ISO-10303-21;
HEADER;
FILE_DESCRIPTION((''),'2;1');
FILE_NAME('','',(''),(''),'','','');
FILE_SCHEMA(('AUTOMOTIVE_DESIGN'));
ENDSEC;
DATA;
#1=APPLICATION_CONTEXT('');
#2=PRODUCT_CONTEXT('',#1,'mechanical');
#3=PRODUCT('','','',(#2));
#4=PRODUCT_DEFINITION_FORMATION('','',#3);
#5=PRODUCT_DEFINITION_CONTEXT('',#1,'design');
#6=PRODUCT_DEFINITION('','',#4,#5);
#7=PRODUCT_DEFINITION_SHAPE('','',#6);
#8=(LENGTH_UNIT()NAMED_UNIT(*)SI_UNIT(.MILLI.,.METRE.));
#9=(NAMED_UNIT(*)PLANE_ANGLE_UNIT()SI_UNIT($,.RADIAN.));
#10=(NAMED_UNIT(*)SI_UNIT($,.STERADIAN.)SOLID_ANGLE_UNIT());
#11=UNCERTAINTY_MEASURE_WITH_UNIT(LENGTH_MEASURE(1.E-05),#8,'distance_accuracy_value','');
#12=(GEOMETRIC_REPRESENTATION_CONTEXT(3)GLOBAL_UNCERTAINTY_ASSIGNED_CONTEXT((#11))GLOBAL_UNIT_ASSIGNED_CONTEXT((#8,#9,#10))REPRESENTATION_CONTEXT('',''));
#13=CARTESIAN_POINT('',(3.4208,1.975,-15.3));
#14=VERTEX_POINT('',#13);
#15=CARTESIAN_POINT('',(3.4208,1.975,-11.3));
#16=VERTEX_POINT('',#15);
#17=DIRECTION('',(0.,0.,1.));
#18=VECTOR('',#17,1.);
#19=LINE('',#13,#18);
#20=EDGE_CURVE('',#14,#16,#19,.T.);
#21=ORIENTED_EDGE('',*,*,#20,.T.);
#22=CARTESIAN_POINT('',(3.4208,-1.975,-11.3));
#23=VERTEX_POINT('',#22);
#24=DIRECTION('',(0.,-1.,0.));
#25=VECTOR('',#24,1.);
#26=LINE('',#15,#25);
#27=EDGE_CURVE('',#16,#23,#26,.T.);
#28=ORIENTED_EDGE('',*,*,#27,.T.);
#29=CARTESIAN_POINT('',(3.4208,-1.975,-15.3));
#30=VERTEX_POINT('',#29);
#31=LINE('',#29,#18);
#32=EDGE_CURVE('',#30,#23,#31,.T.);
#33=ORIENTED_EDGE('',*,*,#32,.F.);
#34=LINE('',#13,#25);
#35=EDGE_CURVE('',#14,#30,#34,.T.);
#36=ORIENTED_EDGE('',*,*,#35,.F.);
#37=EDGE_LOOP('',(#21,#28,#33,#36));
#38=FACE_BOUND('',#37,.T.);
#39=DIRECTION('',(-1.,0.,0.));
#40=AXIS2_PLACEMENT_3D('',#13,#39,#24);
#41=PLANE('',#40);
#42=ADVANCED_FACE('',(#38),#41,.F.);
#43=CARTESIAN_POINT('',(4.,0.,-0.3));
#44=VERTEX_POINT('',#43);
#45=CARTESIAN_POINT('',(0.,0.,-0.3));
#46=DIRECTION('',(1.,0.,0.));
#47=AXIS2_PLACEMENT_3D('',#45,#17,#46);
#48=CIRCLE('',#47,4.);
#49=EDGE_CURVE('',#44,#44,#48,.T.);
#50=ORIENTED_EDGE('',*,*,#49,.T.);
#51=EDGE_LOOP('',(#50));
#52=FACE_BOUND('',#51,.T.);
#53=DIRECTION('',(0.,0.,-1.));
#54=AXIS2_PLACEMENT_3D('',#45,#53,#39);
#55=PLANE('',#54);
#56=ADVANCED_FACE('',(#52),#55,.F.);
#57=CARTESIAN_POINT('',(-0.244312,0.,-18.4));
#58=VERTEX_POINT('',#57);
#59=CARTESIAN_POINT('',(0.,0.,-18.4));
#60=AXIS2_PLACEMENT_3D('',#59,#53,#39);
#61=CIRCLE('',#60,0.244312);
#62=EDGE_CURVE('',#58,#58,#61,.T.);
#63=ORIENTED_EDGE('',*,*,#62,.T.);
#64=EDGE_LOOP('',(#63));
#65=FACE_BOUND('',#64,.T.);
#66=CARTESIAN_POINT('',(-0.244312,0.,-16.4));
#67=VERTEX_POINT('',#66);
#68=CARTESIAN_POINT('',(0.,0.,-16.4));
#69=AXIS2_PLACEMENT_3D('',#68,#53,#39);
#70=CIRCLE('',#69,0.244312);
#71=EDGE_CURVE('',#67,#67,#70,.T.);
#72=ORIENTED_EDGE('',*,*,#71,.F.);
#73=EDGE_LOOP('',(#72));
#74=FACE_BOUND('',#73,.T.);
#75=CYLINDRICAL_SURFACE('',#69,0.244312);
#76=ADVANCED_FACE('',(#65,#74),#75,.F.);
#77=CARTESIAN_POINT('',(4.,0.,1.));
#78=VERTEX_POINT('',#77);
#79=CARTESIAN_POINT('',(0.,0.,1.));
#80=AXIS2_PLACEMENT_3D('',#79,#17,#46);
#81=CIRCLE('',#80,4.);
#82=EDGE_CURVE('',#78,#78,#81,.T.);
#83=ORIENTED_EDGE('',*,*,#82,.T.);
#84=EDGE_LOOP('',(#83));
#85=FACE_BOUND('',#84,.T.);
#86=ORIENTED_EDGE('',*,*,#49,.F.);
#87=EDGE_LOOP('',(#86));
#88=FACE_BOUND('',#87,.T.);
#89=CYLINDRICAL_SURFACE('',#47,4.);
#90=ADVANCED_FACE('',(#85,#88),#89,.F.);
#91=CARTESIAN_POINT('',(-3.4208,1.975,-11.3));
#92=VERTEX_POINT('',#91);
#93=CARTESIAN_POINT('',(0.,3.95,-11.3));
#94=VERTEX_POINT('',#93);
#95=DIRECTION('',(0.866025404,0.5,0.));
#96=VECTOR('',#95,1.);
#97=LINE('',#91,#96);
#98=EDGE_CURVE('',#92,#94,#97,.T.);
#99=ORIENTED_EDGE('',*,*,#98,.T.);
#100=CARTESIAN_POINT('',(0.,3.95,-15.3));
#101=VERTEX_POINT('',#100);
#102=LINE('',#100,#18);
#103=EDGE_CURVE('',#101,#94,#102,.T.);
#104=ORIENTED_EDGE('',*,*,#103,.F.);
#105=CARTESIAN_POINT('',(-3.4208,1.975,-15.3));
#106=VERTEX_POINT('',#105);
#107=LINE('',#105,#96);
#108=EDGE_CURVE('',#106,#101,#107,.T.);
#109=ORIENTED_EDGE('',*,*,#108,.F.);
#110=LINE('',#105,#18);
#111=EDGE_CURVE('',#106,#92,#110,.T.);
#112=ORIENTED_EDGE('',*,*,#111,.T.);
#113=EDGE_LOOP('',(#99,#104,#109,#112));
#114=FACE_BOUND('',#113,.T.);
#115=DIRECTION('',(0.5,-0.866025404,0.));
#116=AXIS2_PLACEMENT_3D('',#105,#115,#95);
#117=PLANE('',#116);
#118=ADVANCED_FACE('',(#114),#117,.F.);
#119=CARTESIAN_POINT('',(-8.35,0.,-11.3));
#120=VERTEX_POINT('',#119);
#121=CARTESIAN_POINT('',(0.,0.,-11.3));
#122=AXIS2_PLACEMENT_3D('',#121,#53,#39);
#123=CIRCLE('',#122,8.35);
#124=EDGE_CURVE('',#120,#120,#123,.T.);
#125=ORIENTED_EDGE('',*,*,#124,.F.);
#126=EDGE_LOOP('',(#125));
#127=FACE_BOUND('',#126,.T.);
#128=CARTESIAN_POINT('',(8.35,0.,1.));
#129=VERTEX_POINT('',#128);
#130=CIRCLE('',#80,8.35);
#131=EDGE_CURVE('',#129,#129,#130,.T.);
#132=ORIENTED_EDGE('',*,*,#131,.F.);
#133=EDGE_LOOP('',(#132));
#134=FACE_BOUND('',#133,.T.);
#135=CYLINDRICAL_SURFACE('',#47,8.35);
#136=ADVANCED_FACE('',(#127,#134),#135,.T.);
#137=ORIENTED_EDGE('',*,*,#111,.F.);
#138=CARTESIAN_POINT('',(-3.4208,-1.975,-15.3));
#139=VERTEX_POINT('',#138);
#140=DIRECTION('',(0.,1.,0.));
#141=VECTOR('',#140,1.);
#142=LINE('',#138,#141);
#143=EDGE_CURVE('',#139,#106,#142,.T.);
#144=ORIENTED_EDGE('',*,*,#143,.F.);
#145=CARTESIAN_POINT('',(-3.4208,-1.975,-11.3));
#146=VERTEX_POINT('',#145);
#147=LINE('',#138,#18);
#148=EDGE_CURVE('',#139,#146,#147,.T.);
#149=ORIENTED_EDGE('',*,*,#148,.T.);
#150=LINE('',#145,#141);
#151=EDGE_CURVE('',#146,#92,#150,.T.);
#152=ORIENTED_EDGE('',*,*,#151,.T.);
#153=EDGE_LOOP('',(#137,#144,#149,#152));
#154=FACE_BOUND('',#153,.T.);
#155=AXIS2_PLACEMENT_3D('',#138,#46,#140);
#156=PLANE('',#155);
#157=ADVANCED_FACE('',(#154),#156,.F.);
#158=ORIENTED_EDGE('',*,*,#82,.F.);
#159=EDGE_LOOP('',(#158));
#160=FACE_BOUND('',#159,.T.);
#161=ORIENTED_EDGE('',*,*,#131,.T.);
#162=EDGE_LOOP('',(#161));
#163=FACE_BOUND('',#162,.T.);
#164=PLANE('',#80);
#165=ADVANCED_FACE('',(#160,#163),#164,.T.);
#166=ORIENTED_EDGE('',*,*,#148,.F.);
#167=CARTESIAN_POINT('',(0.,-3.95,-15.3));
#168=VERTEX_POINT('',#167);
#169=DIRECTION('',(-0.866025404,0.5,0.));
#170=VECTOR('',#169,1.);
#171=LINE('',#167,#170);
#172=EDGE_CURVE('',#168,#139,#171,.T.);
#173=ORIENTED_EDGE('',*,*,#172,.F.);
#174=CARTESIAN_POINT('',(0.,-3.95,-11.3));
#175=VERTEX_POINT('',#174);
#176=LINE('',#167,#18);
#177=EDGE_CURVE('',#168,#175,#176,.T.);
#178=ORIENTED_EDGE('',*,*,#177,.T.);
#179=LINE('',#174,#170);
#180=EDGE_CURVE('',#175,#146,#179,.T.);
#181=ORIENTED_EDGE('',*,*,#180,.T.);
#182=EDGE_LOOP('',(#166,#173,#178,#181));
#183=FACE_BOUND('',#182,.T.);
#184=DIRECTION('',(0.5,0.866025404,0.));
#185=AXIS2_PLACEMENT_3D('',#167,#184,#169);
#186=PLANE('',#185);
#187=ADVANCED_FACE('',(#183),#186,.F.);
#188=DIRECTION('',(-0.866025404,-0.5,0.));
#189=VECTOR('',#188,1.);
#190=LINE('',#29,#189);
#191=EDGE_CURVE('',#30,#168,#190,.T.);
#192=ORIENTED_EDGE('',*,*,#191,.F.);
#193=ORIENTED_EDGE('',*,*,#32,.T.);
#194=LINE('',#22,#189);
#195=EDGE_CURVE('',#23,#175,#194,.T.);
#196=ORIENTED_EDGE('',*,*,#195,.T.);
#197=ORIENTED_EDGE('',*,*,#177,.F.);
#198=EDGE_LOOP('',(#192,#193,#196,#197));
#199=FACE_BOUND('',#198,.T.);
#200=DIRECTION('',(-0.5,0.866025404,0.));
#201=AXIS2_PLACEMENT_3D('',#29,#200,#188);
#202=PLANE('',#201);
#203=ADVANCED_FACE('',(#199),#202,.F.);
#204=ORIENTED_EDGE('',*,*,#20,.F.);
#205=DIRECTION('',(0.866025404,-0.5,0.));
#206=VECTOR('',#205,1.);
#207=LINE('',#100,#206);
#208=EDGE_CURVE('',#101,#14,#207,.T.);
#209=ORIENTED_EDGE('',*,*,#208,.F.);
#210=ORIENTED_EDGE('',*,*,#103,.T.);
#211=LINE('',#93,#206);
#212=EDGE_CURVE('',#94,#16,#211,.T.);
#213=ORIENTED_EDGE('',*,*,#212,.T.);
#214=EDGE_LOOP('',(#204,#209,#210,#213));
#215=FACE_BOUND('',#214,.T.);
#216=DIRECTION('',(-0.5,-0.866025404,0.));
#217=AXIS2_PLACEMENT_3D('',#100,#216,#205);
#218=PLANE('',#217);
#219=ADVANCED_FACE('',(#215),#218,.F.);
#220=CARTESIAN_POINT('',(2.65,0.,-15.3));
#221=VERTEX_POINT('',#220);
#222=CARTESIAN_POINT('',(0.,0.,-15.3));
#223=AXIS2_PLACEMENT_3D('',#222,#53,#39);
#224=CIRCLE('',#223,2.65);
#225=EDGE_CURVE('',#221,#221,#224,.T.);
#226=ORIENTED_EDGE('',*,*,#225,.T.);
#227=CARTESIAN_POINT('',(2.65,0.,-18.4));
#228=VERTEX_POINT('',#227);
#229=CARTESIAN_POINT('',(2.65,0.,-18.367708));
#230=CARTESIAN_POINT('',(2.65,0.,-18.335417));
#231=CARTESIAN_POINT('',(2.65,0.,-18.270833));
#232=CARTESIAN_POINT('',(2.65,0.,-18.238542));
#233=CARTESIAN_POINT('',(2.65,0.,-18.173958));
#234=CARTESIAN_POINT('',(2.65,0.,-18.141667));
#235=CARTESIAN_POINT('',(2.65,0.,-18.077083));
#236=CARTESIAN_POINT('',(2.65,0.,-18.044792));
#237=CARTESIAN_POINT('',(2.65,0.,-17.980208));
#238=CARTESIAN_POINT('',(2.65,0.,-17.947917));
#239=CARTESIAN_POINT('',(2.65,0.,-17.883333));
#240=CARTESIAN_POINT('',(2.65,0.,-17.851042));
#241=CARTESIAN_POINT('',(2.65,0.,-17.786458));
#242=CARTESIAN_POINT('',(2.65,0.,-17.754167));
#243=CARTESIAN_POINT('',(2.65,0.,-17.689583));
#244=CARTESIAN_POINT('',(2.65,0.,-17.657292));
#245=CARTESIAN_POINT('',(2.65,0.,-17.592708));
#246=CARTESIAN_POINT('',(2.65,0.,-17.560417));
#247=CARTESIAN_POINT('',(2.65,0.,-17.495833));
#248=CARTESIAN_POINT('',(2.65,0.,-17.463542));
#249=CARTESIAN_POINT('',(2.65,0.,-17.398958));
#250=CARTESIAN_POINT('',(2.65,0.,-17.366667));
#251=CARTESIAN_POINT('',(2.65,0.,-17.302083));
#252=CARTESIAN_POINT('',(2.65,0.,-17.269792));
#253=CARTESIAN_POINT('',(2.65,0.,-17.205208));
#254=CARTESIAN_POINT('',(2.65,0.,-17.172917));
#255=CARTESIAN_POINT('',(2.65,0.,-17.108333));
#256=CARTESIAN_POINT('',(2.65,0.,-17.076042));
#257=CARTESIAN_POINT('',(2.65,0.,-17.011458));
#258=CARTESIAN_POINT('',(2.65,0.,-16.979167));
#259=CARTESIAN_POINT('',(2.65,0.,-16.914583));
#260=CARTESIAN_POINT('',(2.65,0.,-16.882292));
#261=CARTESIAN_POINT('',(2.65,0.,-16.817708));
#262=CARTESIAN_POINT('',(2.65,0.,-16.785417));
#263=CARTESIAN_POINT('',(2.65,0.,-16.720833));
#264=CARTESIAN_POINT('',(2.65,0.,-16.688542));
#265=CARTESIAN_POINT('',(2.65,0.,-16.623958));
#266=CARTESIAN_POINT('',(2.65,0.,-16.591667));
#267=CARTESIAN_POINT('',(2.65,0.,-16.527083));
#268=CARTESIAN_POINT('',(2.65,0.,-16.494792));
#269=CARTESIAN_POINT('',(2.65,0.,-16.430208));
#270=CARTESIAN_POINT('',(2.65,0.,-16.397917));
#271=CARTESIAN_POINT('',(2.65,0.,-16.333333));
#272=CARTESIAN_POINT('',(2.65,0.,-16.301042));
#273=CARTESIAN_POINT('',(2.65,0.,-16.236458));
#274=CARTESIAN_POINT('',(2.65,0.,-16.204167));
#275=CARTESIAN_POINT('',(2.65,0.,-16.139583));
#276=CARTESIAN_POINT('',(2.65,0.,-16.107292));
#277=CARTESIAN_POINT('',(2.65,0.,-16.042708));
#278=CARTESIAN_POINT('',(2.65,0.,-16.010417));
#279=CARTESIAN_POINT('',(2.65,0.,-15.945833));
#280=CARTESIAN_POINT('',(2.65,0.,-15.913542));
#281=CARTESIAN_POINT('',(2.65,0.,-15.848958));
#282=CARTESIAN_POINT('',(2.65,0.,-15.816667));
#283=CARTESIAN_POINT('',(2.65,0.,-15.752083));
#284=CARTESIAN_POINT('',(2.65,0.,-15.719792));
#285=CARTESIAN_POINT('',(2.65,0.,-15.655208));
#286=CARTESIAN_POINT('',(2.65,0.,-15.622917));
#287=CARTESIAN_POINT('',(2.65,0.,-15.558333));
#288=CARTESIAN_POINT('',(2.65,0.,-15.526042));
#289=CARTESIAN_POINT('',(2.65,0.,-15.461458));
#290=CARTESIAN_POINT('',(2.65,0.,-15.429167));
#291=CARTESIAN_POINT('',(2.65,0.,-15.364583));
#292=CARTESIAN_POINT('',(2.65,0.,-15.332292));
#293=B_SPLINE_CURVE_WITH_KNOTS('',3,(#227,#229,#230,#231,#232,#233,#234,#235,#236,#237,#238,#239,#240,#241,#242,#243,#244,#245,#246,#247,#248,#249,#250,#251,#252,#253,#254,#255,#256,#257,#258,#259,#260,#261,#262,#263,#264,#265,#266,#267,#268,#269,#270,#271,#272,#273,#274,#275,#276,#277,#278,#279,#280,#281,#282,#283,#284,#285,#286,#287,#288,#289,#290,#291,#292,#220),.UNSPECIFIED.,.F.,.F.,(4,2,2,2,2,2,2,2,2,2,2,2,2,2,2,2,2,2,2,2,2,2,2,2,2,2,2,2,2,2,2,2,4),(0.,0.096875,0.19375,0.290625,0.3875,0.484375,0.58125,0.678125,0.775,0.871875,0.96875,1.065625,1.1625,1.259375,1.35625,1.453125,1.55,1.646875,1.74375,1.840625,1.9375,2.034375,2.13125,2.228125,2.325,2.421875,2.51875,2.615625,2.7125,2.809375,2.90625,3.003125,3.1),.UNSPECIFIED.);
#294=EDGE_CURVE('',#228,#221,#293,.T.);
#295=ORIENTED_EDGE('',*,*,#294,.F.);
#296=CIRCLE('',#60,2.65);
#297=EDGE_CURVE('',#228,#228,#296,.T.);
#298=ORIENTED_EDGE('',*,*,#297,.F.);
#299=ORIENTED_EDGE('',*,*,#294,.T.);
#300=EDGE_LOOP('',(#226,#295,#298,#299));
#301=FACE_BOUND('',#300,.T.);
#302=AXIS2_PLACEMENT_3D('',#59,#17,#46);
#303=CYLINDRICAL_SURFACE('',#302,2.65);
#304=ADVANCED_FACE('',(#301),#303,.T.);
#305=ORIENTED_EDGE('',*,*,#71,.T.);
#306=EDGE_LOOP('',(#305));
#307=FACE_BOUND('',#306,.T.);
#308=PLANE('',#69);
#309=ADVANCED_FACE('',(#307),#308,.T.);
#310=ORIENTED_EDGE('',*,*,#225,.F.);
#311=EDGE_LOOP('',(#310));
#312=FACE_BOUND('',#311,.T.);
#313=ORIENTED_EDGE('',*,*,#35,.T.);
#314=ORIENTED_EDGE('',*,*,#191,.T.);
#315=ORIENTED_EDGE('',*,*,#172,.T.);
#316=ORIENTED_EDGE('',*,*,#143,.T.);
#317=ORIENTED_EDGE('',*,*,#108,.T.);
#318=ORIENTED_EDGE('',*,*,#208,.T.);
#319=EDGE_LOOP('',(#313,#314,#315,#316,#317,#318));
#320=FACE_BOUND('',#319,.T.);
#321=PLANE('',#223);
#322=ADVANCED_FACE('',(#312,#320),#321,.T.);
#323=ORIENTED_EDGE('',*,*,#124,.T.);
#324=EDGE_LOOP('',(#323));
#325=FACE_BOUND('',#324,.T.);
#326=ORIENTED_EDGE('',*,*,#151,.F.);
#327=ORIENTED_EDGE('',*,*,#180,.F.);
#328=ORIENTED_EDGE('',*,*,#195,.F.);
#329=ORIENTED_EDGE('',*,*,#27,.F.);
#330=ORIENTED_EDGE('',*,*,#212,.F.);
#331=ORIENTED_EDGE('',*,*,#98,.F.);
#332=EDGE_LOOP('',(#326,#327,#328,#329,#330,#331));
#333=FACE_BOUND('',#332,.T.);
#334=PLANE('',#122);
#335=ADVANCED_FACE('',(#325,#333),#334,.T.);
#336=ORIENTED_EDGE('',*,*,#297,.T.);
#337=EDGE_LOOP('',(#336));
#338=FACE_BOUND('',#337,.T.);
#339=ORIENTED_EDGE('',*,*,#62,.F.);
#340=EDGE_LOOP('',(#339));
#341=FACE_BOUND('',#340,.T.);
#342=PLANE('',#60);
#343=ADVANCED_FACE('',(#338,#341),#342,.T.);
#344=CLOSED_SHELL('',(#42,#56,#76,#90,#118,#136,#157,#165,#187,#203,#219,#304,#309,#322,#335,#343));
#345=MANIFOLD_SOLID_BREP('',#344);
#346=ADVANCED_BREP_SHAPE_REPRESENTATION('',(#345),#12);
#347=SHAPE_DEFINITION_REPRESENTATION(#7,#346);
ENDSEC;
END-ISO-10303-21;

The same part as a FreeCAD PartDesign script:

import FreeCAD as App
import Part
import Sketcher

V = App.Vector
Q = App.Units.Quantity

doc = App.newDocument("Part")
body = doc.addObject("PartDesign::Body", "Body")

# Sketch on XY plane
sketch1 = doc.addObject("Sketcher::SketchObject", "Sketch")
body.addObject(sketch1)
sketch1.AttachmentSupport = (doc.XY_Plane, [""])
sketch1.MapMode = "FlatFace"
sketch1.addGeometry([
    Part.Circle(V(0, 0, 0), V(0, 0, 1), 8.3),
    Part.Circle(V(0, 0, 0), V(0, 0, 1), 4),
], False)
sketch1.addConstraint([
    Sketcher.Constraint("Coincident", 0, 3, -1, 1),
    Sketcher.Constraint("Coincident", 1, 3, -1, 1),
    Sketcher.Constraint("Diameter", 1, Q("8 mm")),
    Sketcher.Constraint("Diameter", 0, Q("16.7 mm")),
])
pad1 = doc.addObject("PartDesign::Pad", "Pad")
body.addObject(pad1)
pad1.Profile = sketch1
pad1.Type = "TwoLengths"
pad1.Length = 1
pad1.Length2 = 0.3

# Sketch on XY plane
sketch2 = doc.addObject("Sketcher::SketchObject", "Sketch001")
body.addObject(sketch2)
sketch2.AttachmentSupport = (doc.XY_Plane, [""])
sketch2.MapMode = "FlatFace"
sketch2.AttachmentOffset = App.Placement(V(0, 0, -0.3), App.Rotation())
sketch2.addGeometry(Part.Circle(V(0, 0, 0), V(0, 0, 1), 8), False)
sketch2.addConstraint([
    Sketcher.Constraint("Coincident", 0, 3, -1, 1),
    Sketcher.Constraint("Diameter", 0, Q("16.7 mm")),
])
pad2 = doc.addObject("PartDesign::Pad", "Pad001")
body.addObject(pad2)
pad2.Profile = sketch2
pad2.Length = 11
pad2.Reversed = True

# Sketch on XY plane
sketch3 = doc.addObject("Sketcher::SketchObject", "Sketch002")
body.addObject(sketch3)
sketch3.AttachmentSupport = (doc.XY_Plane, [""])
sketch3.MapMode = "FlatFace"
sketch3.AttachmentOffset = App.Placement(V(0, 0, -11.3), App.Rotation())
sketch3.addGeometry([
    Part.LineSegment(V(0, 4, 0), V(3.4, 2, 0)),  # 0
    Part.LineSegment(V(3.4, 2, 0), V(3.4, -2, 0)),  # 1
    Part.LineSegment(V(3.4, -2, 0), V(0, -4, 0)),  # 2
    Part.LineSegment(V(0, -4, 0), V(-3.4, -2, 0)),  # 3
    Part.LineSegment(V(-3.4, -2, 0), V(-3.4, 2, 0)),  # 4
    Part.LineSegment(V(-3.4, 2, 0), V(0, 4, 0)),  # 5
], False)
sketch3.addConstraint([
    Sketcher.Constraint("Coincident", 0, 2, 1, 1),
    Sketcher.Constraint("Coincident", 1, 2, 2, 1),
    Sketcher.Constraint("Coincident", 2, 2, 3, 1),
    Sketcher.Constraint("Coincident", 3, 2, 4, 1),
    Sketcher.Constraint("Coincident", 4, 2, 5, 1),
    Sketcher.Constraint("Coincident", 5, 2, 0, 1),
    Sketcher.Constraint("Vertical", 1),
    Sketcher.Constraint("Vertical", 4),
    Sketcher.Constraint("Symmetric", 0, 2, 3, 2, -1, 1),
    Sketcher.Constraint("Symmetric", 2, 2, 5, 2, -1, 1),
    Sketcher.Constraint("PointOnObject", 2, 2, -2),
    Sketcher.Constraint("Parallel", 2, 5),
    Sketcher.Constraint("Horizontal", 1, 2, 3, 2),
    Sketcher.Constraint("Angle", 0, Q("-30 deg")),
    Sketcher.Constraint("DistanceY", 1, 2, 1, 1, Q("3.95 mm")),
    Sketcher.Constraint("DistanceY", 2, 2, 5, 2, Q("7.9 mm")),
])
pad3 = doc.addObject("PartDesign::Pad", "Pad002")
body.addObject(pad3)
pad3.Profile = sketch3
pad3.Length = 4
pad3.Reversed = True

# Sketch on XY plane
sketch4 = doc.addObject("Sketcher::SketchObject", "Sketch003")
body.addObject(sketch4)
sketch4.AttachmentSupport = (doc.XY_Plane, [""])
sketch4.MapMode = "FlatFace"
sketch4.AttachmentOffset = App.Placement(V(0, 0, -15.3), App.Rotation())
sketch4.addGeometry(Part.Circle(V(0, 0, 0), V(0, 0, 1), 2.6), False)
sketch4.addConstraint([
    Sketcher.Constraint("Coincident", 0, 3, -1, 1),
    Sketcher.Constraint("Diameter", 0, Q("5.3 mm")),
])
pad4 = doc.addObject("PartDesign::Pad", "Pad003")
body.addObject(pad4)
pad4.Profile = sketch4
pad4.Length = 3.1
pad4.Reversed = True

# Sketch on XY plane
sketch5 = doc.addObject("Sketcher::SketchObject", "Sketch004")
body.addObject(sketch5)
sketch5.AttachmentSupport = (doc.XY_Plane, [""])
sketch5.MapMode = "FlatFace"
sketch5.AttachmentOffset = App.Placement(V(0, 0, -18.4), App.Rotation())
sketch5.addGeometry(Part.Circle(V(0, 0, 0), V(0, 0, 1), 0.24), False)
sketch5.addConstraint([
    Sketcher.Constraint("Coincident", 0, 3, -1, 1),
    Sketcher.Constraint("Diameter", 0, Q("0.488625 mm")),
])
pocket1 = doc.addObject("PartDesign::Pocket", "Pocket")
body.addObject(pocket1)
pocket1.Profile = sketch5
pocket1.Length = 2
pocket1.Reversed = True

doc.recompute()
